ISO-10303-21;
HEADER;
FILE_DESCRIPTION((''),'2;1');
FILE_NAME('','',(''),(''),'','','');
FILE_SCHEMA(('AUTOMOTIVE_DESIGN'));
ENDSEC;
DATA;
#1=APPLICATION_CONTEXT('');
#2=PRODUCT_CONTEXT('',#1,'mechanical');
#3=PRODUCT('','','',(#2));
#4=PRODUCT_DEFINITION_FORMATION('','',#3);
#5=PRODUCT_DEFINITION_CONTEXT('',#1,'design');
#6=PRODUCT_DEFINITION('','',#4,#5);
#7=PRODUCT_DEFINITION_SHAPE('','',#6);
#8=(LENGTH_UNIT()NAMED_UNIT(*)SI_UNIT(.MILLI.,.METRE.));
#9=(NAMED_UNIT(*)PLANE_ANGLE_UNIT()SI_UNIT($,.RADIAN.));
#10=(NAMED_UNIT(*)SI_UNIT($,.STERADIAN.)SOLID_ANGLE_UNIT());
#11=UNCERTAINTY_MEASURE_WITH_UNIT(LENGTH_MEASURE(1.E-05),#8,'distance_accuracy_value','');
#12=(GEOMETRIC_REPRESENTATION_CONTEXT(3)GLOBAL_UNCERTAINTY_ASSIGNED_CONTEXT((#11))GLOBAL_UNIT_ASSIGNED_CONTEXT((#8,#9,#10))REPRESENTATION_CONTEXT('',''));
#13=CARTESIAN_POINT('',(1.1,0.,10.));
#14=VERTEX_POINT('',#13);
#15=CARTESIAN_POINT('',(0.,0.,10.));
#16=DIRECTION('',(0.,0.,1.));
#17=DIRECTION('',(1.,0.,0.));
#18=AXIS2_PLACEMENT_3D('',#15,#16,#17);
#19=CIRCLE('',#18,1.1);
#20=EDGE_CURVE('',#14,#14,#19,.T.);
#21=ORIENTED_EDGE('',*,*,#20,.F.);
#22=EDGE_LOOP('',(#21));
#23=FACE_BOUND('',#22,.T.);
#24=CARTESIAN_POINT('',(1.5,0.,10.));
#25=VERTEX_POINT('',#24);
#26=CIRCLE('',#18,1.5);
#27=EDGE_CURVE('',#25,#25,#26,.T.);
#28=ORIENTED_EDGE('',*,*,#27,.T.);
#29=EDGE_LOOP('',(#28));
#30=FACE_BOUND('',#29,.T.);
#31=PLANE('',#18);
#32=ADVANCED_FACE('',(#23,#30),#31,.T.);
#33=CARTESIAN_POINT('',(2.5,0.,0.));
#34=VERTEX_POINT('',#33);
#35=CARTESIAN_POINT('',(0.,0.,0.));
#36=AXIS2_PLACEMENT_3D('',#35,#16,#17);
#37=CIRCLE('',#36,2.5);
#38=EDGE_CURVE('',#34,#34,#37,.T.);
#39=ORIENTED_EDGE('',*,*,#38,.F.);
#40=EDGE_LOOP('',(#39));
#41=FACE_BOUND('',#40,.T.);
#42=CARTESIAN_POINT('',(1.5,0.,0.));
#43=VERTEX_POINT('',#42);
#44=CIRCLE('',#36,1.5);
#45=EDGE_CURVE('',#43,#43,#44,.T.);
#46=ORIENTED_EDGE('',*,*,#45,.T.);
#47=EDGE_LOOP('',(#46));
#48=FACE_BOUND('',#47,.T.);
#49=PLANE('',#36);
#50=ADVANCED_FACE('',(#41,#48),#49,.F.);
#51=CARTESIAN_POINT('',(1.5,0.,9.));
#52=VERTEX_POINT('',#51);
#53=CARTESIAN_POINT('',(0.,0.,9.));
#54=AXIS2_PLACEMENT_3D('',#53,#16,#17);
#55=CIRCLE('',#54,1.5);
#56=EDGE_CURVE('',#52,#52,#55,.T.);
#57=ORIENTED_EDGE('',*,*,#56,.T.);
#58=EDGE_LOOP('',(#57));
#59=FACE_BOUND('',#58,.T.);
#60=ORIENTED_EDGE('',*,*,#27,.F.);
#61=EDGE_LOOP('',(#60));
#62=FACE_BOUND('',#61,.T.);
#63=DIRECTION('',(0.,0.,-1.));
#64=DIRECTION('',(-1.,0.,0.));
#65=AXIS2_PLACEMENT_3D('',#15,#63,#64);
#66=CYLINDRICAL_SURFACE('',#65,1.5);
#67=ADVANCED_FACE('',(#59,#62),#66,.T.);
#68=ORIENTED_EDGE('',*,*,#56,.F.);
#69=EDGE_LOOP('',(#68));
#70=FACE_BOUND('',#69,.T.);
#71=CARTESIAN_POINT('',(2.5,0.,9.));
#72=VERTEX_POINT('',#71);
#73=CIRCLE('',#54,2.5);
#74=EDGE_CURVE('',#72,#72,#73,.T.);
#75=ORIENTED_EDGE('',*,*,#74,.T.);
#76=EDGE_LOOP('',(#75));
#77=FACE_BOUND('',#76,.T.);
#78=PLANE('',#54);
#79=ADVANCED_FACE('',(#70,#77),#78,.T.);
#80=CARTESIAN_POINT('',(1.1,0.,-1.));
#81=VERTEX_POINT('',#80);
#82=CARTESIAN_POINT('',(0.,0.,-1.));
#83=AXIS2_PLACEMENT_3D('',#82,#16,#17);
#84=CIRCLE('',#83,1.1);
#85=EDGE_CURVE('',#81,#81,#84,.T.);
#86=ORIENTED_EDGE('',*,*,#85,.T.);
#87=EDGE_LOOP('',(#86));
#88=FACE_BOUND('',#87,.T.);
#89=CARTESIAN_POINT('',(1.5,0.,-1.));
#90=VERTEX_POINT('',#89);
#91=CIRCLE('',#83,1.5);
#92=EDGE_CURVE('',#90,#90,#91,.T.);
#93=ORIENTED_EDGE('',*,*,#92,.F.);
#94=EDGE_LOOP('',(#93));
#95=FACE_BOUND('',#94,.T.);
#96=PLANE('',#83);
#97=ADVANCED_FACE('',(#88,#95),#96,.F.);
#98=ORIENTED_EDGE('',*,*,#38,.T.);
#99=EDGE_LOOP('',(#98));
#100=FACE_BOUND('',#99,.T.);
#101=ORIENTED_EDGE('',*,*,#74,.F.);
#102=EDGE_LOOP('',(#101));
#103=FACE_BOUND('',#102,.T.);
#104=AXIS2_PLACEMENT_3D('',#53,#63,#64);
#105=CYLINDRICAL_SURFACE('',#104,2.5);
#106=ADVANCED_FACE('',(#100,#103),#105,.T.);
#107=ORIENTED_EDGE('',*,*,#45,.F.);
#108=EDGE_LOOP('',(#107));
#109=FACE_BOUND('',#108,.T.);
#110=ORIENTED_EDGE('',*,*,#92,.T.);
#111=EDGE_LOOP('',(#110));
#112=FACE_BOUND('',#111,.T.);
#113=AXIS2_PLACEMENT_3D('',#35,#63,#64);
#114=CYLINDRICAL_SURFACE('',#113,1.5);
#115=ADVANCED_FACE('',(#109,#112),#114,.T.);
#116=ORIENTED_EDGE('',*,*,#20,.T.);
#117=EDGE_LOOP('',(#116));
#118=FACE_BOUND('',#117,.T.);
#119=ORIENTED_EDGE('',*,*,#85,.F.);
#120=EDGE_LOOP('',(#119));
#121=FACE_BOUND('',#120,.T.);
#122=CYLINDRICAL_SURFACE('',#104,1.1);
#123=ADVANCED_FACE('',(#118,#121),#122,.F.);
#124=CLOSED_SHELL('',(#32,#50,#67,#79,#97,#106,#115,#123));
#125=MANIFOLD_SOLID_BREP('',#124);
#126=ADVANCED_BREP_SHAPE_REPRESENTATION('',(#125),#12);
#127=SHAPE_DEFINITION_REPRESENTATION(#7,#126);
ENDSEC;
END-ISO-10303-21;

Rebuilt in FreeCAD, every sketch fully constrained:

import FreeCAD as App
import Part
import Sketcher

V = App.Vector

doc = App.newDocument("Part")
body = doc.addObject("PartDesign::Body", "Body")

sketch1 = body.newObject("Sketcher::SketchObject", "Sketch")
sketch1.AttachmentSupport = (doc.getObject("XY_Plane"), [""])
sketch1.MapMode = "FlatFace"
sketch1.addGeometry([
    Part.Circle(V(0, 0, 0), V(0, 0, 1), 2.5),
    Part.Circle(V(0, 0, 0), V(0, 0, 1), 1.1),
], False)
sketch1.addConstraint([
    Sketcher.Constraint("Coincident", 0, 3, -1, 1),
    Sketcher.Constraint("Coincident", 1, 3, -1, 1),
    Sketcher.Constraint("Diameter", 0, 5.0),
    Sketcher.Constraint("Diameter", 1, 2.2),
])
pad1 = body.newObject("PartDesign::Pad", "Pad")
pad1.Profile = sketch1
pad1.Length = 9

sketch2 = body.newObject("Sketcher::SketchObject", "Sketch001")
sketch2.AttachmentSupport = (doc.getObject("XY_Plane"), [""])
sketch2.MapMode = "FlatFace"
sketch2.AttachmentOffset = App.Placement(V(0, 0, -1), App.Rotation())
sketch2.addGeometry([
    Part.Circle(V(0, 0, 0), V(0, 0, 1), 1.5),
    Part.Circle(V(0, 0, 0), V(0, 0, 1), 1.1),
], False)
sketch2.addConstraint([
    Sketcher.Constraint("Coincident", 0, 3, -1, 1),
    Sketcher.Constraint("Coincident", 1, 3, -1, 1),
    Sketcher.Constraint("Diameter", 0, 3.0),
    Sketcher.Constraint("Diameter", 1, 2.2),
])
pad2 = body.newObject("PartDesign::Pad", "Pad001")
pad2.Profile = sketch2
pad2.Length = 1

sketch3 = body.newObject("Sketcher::SketchObject", "Sketch002")
sketch3.AttachmentSupport = (doc.getObject("XY_Plane"), [""])
sketch3.MapMode = "FlatFace"
sketch3.AttachmentOffset = App.Placement(V(0, 0, 9), App.Rotation())
sketch3.addGeometry([
    Part.Circle(V(0, 0, 0), V(0, 0, 1), 1.5),
    Part.Circle(V(0, 0, 0), V(0, 0, 1), 1.1),
], False)
sketch3.addConstraint([
    Sketcher.Constraint("Coincident", 0, 3, -1, 1),
    Sketcher.Constraint("Coincident", 1, 3, -1, 1),
    Sketcher.Constraint("Diameter", 0, 3.0),
    Sketcher.Constraint("Diameter", 1, 2.2),
])
pad3 = body.newObject("PartDesign::Pad", "Pad002")
pad3.Profile = sketch3
pad3.Length = 1

doc.recompute()
